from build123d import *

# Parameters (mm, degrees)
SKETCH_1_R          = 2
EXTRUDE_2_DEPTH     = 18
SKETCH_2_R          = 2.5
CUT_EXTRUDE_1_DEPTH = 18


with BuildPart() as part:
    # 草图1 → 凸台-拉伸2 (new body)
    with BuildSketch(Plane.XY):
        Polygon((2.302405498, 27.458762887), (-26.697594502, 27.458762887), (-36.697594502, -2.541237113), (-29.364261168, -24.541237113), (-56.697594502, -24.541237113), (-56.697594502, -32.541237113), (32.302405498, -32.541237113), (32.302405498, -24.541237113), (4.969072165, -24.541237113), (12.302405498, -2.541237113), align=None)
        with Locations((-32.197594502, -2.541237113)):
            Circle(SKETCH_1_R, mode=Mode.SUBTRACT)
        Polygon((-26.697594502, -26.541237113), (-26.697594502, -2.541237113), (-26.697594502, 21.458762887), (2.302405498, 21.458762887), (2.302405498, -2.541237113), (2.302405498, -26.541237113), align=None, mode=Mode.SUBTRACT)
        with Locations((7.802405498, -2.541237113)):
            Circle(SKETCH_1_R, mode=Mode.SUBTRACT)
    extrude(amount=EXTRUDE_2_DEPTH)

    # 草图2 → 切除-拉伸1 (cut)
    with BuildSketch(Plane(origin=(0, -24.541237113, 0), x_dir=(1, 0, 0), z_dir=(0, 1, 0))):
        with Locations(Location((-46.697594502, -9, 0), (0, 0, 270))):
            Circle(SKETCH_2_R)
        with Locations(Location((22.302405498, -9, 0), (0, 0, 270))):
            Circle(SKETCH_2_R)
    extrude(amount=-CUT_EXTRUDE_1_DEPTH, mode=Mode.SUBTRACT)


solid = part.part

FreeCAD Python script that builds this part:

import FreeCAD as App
import Part
import Sketcher

V = App.Vector


def add_polygon(sketch, points):
    """Adds a closed chain of lines whose ends are joined by coincident constraints."""
    first, n = sketch.GeometryCount, len(points)
    for a, b in zip(points, points[1:] + points[:1]):
        sketch.addGeometry(Part.LineSegment(App.Vector(*a, 0), App.Vector(*b, 0)), False)
    for i in range(n):
        sketch.addConstraint(Sketcher.Constraint("Coincident", first + i, 2, first + (i + 1) % n, 1))

doc = App.newDocument("Part")
body = doc.addObject("PartDesign::Body", "Body")

sketch1 = body.newObject("Sketcher::SketchObject", "Sketch")
sketch1.AttachmentSupport = (doc.getObject("XY_Plane"), [""])
sketch1.MapMode = "FlatFace"
add_polygon(sketch1, [(2.3, 27.5), (-26.7, 27.5), (-36.7, -2.5), (-29.4, -24.5), (-56.7, -24.5), (-56.7, -32.5), (32.3, -32.5), (32.3, -24.5), (5, -24.5), (12.3, -2.5)])
sketch1.addGeometry(Part.Circle(V(-32.2, -2.5, 0), V(0, 0, 1), 2), False)
add_polygon(sketch1, [(2.3, -26.5), (-26.7, -26.5), (-26.7, 21.5), (2.3, 21.5)])
sketch1.addGeometry(Part.Circle(V(7.8, -2.5, 0), V(0, 0, 1), 2), False)
sketch1.addConstraint([
    Sketcher.Constraint("Horizontal", 0),
    Sketcher.Constraint("Horizontal", 3),
    Sketcher.Constraint("Vertical", 4),
    Sketcher.Constraint("Horizontal", 5),
    Sketcher.Constraint("Vertical", 6),
    Sketcher.Constraint("Horizontal", 7),
    Sketcher.Constraint("Horizontal", 11),
    Sketcher.Constraint("Vertical", 12),
    Sketcher.Constraint("Horizontal", 13),
    Sketcher.Constraint("Vertical", 14),
    Sketcher.Constraint("Equal", 10, 15),
    Sketcher.Constraint("Parallel", 1, 8),
    Sketcher.Constraint("Parallel", 2, 9),
    Sketcher.Constraint("Horizontal", 10, 3, 15, 3),
    Sketcher.Constraint("Horizontal", 15, 3, 1, 2),
    Sketcher.Constraint("Horizontal", 3, 2, 6, 2),
    Sketcher.Constraint("Horizontal", 1, 2, 8, 2),
    Sketcher.Constraint("Vertical", 0, 2, 11, 2),
    Sketcher.Constraint("Vertical", 9, 2, 13, 2),
    Sketcher.Constraint("Equal", 3, 7),
    Sketcher.Constraint("Equal", 2, 8),
    Sketcher.Constraint("Diameter", 10, 4.0),
    Sketcher.Constraint("DistanceX", 0, 2, 0, 1, 29.0),
    Sketcher.Constraint("DistanceX", 5, 1, 5, 2, 89.0),
    Sketcher.Constraint("DistanceY", 4, 2, 4, 1, 8.0),
    Sketcher.Constraint("DistanceY", 12, 1, 12, 2, 48.0),
    Sketcher.Constraint("DistanceX", 10, 3, 15, 3, 40.0),
    Sketcher.Constraint("DistanceY", 10, 3, 0, 2, 30.0),
    Sketcher.Constraint("DistanceX", 1, 2, 0, 2, 10.0),
    Sketcher.Constraint("DistanceY", 2, 2, 10, 3, 22.0),
    Sketcher.Constraint("DistanceY", 11, 2, 2, 2, 2.0),
    Sketcher.Constraint("DistanceX", 10, 3, 0, 2, 5.5),
    Sketcher.Constraint("DistanceX", 2, 2, -1, 1, 29.364261),
    Sketcher.Constraint("DistanceY", 10, 3, -1, 1, 2.541237),
])
pad1 = body.newObject("PartDesign::Pad", "Pad")
pad1.Profile = sketch1
pad1.Length = 18

sketch2 = body.newObject("Sketcher::SketchObject", "Sketch001")
sketch2.AttachmentSupport = (doc.getObject("XZ_Plane"), [""])
sketch2.MapMode = "FlatFace"
sketch2.AttachmentOffset = App.Placement(V(0, 0, 24.541237), App.Rotation())
sketch2.addGeometry([
    Part.Circle(V(-46.7, 9, 0), V(0, 0, 1), 2.5),
    Part.Circle(V(22.3, 9, 0), V(0, 0, 1), 2.5),
], False)
sketch2.addConstraint([
    Sketcher.Constraint("Equal", 0, 1),
    Sketcher.Constraint("Horizontal", 0, 3, 1, 3),
    Sketcher.Constraint("Diameter", 0, 5.0),
    Sketcher.Constraint("DistanceY", -1, 1, 0, 3, 9.0),
    Sketcher.Constraint("DistanceX", 0, 3, 1, 3, 69.0),
    Sketcher.Constraint("DistanceX", 0, 3, -1, 1, 46.697595),
])
pocket1 = body.newObject("PartDesign::Pocket", "Pocket")
pocket1.Profile = sketch2
pocket1.Length = 18
pocket1.Reversed = True

doc.recompute()
